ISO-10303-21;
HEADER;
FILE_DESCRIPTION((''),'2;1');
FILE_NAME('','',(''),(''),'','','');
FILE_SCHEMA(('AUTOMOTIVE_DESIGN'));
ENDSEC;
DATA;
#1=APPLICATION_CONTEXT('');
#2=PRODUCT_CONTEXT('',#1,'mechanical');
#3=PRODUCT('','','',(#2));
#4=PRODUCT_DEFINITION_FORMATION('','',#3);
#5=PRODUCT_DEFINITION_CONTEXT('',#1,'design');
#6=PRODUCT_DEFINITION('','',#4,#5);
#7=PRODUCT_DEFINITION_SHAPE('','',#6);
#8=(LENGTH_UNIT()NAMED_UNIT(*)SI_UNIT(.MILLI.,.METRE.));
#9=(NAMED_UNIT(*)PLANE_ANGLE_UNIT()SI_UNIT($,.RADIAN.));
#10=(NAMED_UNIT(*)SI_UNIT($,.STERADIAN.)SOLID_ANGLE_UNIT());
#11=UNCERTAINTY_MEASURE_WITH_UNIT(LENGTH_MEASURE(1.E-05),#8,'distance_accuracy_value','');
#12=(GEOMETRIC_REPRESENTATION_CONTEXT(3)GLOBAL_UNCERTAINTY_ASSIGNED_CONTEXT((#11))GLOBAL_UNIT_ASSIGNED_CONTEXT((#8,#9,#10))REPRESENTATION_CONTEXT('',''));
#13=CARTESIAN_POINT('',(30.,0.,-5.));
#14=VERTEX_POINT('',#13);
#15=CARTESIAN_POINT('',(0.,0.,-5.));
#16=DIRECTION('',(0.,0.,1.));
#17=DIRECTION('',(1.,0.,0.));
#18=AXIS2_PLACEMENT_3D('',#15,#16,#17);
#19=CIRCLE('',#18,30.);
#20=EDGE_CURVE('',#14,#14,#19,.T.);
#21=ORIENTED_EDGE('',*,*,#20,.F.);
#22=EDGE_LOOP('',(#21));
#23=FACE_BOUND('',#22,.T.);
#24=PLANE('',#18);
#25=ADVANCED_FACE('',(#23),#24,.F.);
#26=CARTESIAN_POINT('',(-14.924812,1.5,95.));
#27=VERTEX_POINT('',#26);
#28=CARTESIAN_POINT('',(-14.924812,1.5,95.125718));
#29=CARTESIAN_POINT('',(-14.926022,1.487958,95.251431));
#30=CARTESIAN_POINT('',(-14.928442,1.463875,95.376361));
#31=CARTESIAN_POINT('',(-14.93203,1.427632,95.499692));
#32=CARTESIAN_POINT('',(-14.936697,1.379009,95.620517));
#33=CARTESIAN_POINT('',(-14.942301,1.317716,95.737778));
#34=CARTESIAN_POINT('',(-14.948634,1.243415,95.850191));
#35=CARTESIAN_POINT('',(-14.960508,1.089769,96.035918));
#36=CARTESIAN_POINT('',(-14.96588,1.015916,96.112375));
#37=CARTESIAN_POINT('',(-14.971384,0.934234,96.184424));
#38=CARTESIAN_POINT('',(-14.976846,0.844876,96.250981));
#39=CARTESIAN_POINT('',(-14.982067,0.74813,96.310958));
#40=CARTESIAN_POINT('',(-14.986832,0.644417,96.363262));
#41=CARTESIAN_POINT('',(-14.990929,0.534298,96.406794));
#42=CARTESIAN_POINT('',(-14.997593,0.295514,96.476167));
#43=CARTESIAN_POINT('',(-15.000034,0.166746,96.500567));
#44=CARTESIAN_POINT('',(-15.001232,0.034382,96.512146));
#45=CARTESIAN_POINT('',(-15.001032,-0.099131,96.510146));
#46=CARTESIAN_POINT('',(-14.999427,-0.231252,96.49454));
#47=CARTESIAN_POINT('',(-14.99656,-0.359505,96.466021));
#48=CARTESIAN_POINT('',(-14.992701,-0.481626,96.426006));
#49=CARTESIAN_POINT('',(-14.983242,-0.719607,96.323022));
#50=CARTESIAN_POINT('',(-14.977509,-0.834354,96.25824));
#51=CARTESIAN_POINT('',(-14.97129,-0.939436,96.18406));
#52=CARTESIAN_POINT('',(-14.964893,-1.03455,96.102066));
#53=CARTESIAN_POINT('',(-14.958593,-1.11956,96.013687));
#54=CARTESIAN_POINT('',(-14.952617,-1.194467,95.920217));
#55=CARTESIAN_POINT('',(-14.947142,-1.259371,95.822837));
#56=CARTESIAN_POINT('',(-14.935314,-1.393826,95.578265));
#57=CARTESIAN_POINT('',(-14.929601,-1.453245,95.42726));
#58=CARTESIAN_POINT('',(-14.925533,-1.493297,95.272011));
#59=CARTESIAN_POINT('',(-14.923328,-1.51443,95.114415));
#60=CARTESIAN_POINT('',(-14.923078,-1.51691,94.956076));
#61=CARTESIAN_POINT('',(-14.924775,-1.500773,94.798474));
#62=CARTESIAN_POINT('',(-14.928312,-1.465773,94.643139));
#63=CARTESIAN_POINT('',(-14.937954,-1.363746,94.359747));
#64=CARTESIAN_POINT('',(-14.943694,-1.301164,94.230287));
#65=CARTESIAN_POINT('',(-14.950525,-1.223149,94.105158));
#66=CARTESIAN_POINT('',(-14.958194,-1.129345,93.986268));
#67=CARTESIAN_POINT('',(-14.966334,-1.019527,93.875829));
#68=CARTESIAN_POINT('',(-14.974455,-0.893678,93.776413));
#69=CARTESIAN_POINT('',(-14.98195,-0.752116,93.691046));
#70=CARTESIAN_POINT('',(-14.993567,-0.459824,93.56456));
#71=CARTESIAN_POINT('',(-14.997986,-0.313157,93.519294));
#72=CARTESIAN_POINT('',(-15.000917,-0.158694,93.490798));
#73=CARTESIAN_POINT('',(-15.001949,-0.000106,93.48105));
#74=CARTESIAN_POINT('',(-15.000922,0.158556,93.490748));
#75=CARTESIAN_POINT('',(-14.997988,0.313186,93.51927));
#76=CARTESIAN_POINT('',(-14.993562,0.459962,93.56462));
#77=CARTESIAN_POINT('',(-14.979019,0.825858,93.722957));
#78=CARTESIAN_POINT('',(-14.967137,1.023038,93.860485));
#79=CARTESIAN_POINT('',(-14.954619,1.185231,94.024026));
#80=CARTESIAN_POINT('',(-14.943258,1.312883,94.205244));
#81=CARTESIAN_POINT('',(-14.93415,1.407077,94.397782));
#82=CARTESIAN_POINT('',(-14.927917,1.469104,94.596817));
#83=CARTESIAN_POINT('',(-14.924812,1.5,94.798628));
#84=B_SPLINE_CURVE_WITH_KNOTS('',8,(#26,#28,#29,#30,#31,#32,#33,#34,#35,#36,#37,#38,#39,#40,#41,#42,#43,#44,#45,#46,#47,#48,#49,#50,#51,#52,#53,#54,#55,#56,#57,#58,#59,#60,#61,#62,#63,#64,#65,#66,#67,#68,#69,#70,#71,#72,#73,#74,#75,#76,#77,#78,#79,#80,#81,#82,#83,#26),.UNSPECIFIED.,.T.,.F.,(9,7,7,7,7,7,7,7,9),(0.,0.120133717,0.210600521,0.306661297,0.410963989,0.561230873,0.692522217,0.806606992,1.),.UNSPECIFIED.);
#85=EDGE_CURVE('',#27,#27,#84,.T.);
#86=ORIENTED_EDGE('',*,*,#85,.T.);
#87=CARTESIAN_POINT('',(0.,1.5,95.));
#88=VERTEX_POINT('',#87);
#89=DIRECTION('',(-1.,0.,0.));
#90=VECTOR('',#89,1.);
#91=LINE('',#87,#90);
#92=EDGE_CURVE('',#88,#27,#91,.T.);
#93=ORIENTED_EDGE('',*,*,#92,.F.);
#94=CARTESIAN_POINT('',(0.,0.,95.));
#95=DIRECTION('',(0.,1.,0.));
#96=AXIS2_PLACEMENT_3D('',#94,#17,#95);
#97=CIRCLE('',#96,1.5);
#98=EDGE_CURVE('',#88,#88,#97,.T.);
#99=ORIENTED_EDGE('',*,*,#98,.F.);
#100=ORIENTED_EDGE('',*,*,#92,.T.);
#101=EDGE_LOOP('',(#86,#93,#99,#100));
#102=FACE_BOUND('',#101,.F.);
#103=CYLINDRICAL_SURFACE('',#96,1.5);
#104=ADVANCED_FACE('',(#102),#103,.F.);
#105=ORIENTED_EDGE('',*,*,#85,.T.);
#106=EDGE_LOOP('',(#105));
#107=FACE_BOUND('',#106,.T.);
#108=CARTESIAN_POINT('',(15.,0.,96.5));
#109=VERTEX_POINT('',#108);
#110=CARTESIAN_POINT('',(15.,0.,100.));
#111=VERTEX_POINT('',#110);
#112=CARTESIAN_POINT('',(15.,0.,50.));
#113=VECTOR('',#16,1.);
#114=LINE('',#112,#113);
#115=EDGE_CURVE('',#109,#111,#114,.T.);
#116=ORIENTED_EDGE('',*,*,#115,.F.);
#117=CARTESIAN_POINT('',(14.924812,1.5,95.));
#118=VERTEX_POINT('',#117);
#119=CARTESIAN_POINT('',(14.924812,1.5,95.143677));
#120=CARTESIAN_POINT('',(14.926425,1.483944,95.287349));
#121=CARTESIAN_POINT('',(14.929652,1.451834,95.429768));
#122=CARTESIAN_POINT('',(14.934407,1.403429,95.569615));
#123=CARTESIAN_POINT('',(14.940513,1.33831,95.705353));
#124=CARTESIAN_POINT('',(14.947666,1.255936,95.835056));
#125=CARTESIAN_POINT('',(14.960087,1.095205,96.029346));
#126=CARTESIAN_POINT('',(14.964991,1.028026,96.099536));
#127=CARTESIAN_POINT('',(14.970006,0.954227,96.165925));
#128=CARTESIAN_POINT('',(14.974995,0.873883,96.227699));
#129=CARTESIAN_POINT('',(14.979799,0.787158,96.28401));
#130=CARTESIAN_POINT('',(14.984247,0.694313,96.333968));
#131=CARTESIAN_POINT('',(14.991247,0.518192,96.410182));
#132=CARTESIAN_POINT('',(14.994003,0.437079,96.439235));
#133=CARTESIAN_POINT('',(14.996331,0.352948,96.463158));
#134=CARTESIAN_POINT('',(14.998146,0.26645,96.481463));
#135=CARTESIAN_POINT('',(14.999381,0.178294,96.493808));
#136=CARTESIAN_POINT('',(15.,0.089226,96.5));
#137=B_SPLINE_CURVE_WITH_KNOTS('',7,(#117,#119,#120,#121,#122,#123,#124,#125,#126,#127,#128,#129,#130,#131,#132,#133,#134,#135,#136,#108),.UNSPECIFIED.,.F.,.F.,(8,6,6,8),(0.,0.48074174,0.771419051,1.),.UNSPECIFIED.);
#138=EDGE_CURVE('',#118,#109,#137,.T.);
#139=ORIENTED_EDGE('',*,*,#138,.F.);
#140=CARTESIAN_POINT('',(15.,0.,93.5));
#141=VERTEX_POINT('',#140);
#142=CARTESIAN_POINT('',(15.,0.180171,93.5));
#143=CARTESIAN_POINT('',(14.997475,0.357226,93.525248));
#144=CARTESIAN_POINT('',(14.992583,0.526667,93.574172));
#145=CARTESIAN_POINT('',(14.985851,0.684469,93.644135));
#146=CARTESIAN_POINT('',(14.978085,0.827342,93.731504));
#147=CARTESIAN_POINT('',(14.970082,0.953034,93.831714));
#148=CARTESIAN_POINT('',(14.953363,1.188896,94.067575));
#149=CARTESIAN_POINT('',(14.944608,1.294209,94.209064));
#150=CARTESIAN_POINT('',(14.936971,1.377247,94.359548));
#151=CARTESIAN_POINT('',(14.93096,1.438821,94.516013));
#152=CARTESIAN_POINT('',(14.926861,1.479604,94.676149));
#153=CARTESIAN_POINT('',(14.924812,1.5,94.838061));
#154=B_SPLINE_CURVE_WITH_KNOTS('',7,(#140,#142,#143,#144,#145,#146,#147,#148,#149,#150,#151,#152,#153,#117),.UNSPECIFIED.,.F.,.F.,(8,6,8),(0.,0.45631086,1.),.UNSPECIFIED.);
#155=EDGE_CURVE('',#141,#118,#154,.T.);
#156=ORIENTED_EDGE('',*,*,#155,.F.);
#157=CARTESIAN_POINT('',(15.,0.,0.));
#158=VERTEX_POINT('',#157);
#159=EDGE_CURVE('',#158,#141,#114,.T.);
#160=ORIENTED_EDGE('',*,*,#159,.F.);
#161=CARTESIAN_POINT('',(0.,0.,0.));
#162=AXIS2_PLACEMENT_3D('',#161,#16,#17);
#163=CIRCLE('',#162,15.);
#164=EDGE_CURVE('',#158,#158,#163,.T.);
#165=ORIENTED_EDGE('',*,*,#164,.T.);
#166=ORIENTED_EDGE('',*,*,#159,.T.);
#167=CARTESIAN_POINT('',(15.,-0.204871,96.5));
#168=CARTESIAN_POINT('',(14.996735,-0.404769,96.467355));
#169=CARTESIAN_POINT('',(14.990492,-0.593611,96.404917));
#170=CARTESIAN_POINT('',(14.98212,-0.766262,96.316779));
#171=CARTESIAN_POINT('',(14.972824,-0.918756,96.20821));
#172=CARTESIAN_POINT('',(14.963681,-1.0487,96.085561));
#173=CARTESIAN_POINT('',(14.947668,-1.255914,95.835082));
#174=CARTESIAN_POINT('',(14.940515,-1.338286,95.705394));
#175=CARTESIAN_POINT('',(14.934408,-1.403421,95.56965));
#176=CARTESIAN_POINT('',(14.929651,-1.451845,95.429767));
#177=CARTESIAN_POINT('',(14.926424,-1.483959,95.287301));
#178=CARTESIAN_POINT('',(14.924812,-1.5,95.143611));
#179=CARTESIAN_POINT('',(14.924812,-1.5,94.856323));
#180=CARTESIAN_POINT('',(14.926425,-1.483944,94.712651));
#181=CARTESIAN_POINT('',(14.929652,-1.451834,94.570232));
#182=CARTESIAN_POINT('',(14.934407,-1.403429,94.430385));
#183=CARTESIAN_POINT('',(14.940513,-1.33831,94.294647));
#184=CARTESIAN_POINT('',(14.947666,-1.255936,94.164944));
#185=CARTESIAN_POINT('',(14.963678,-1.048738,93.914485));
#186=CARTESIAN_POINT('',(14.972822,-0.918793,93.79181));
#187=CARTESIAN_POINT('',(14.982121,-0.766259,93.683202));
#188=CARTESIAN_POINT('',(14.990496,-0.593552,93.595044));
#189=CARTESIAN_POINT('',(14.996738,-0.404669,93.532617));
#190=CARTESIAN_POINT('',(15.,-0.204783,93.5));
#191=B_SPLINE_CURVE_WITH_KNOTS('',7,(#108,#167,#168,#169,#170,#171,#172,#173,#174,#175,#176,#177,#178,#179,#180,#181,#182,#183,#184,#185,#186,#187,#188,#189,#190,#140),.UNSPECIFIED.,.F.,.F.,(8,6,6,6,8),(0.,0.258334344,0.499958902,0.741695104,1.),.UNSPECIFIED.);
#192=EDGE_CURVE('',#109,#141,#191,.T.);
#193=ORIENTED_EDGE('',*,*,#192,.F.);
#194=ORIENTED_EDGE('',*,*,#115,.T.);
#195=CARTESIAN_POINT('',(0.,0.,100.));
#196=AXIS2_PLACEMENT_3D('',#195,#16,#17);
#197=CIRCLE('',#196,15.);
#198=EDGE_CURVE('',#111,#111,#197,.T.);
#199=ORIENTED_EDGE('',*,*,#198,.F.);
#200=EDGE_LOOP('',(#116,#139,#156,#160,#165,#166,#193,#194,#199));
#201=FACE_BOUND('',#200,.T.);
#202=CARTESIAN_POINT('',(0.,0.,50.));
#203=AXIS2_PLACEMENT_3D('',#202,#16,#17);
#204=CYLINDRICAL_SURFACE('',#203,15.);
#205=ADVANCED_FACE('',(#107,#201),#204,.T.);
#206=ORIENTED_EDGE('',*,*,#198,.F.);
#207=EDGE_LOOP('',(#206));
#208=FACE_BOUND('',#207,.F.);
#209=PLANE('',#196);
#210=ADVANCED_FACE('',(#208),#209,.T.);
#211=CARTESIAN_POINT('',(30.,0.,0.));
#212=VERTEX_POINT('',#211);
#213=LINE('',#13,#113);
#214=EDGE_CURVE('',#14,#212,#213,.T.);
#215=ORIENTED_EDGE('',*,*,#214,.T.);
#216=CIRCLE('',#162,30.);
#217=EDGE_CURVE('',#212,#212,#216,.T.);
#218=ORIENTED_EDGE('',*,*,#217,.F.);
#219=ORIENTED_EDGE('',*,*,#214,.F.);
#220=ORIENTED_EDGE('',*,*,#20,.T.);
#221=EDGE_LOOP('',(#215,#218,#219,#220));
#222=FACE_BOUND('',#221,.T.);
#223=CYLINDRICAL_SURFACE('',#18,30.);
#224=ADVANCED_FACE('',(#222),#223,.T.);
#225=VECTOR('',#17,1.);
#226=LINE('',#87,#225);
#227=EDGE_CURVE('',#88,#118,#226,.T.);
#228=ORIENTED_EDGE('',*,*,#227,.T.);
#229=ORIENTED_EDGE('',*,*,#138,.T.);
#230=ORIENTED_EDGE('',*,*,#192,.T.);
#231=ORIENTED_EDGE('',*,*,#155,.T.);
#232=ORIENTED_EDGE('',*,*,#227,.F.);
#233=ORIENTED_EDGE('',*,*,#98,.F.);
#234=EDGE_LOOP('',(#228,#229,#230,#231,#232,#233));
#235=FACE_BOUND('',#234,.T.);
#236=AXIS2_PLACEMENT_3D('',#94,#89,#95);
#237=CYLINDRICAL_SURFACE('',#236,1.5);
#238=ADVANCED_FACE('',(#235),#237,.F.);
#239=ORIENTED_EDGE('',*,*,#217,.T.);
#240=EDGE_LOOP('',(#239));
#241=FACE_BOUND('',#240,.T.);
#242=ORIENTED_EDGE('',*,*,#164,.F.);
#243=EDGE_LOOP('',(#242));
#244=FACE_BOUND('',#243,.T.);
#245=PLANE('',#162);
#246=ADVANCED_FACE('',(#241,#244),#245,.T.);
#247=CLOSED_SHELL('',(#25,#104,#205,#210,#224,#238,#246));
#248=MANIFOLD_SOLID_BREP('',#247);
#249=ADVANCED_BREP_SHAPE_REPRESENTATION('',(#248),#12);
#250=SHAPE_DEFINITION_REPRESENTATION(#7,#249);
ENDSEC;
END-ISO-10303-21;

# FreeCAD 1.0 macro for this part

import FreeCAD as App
import Part
import Sketcher

V = App.Vector
Q = App.Units.Quantity

doc = App.newDocument("Part")
body = doc.addObject("PartDesign::Body", "Body")

# Sketch on XZ plane
sketch1 = body.newObject("Sketcher::SketchObject", "Sketch")
sketch1.AttachmentSupport = (doc.getObject("XZ_Plane"), [""])
sketch1.MapMode = "FlatFace"
sketch1.addGeometry([
    Part.LineSegment(V(0, 100, 0), V(0, -5, 0)),  # 0
    Part.LineSegment(V(0, -5, 0), V(30, -5, 0)),  # 1
    Part.LineSegment(V(30, -5, 0), V(30, 0, 0)),  # 2
    Part.LineSegment(V(30, 0, 0), V(15, 0, 0)),  # 3
    Part.LineSegment(V(15, 0, 0), V(15, 100, 0)),  # 4
    Part.LineSegment(V(15, 100, 0), V(0, 100, 0)),  # 5
], False)
sketch1.addConstraint([
    Sketcher.Constraint("Coincident", 0, 2, 1, 1),
    Sketcher.Constraint("Coincident", 1, 2, 2, 1),
    Sketcher.Constraint("Coincident", 2, 2, 3, 1),
    Sketcher.Constraint("Coincident", 3, 2, 4, 1),
    Sketcher.Constraint("Coincident", 4, 2, 5, 1),
    Sketcher.Constraint("Coincident", 5, 2, 0, 1),
    Sketcher.Constraint("Vertical", 0),
    Sketcher.Constraint("Horizontal", 1),
    Sketcher.Constraint("Vertical", 2),
    Sketcher.Constraint("Horizontal", 3),
    Sketcher.Constraint("Vertical", 4),
    Sketcher.Constraint("Horizontal", 5),
    Sketcher.Constraint("PointOnObject", 0, 2, -2),
    Sketcher.Constraint("PointOnObject", 2, 2, -1),
    Sketcher.Constraint("Equal", 3, 5),
    Sketcher.Constraint("DistanceX", 1, 1, 1, 2, Q("30 mm")),
    Sketcher.Constraint("DistanceY", 0, 2, 0, 1, Q("105 mm")),
    Sketcher.Constraint("DistanceY", 2, 1, 2, 2, Q("5 mm")),
])
revolution = body.newObject("PartDesign::Revolution", "Revolution")
revolution.Profile = sketch1
revolution.ReferenceAxis = (sketch1, ["V_Axis"])
revolution.Angle = 360

# Sketch on YZ plane
sketch2 = body.newObject("Sketcher::SketchObject", "Sketch001")
sketch2.AttachmentSupport = (doc.getObject("YZ_Plane"), [""])
sketch2.MapMode = "FlatFace"
sketch2.addGeometry(Part.Circle(V(0, 95, 0), V(0, 0, 1), 1.5), False)
sketch2.addConstraint([
    Sketcher.Constraint("PointOnObject", 0, 3, -2),
    Sketcher.Constraint("Diameter", 0, Q("3 mm")),
    Sketcher.Constraint("DistanceY", -1, 1, 0, 3, Q("95 mm")),
])
pocket1 = body.newObject("PartDesign::Pocket", "Pocket")
pocket1.Profile = sketch2
pocket1.Type = "ThroughAll"
pocket1.Midplane = True

doc.recompute()
